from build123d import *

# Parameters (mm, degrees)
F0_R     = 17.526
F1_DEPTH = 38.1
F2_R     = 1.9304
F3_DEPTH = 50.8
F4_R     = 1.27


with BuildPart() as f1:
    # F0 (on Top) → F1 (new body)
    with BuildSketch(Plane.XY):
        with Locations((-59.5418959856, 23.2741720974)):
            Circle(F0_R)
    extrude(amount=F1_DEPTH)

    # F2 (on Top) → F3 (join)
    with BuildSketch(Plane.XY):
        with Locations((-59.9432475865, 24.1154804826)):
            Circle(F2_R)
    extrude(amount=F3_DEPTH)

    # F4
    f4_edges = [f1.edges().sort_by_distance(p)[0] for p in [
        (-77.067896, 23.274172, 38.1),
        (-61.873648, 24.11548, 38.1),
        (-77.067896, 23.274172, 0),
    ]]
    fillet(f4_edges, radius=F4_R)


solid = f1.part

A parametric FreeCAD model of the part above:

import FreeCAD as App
import Part
import Sketcher

V = App.Vector
Q = App.Units.Quantity


def edges_at(feature, points):
    """Names of the edges that pass closest to the given points."""
    edges = feature.Shape.Edges
    near = lambda p: min(range(len(edges)), key=lambda i: edges[i].distToShape(Part.Vertex(*p))[0])
    return sorted({f"Edge{near(p) + 1}" for p in points})

doc = App.newDocument("Part")
body = doc.addObject("PartDesign::Body", "Body")

sketch1 = body.newObject("Sketcher::SketchObject", "Sketch")
sketch1.AttachmentSupport = (doc.getObject("XY_Plane"), [""])
sketch1.MapMode = "FlatFace"
sketch1.addGeometry(Part.Circle(V(-60, 23, 0), V(0, 0, 1), 18), False)
sketch1.addConstraint(Sketcher.Constraint("Diameter", 0, Q("1.38 in")))
sketch1.addConstraint(Sketcher.Constraint("DistanceX", 0, 3, -1, 1, 59.541896))
sketch1.addConstraint(Sketcher.Constraint("DistanceY", -1, 1, 0, 3, 23.274172))
pad1 = body.newObject("PartDesign::Pad", "Pad")
pad1.Profile = sketch1
pad1.Length = Q("1.5 in")

sketch2 = body.newObject("Sketcher::SketchObject", "Sketch001")
sketch2.AttachmentSupport = (doc.getObject("XY_Plane"), [""])
sketch2.MapMode = "FlatFace"
sketch2.addGeometry(Part.Circle(V(-59.9, 24.1, 0), V(0, 0, 1), 1.9), False)
sketch2.addConstraint(Sketcher.Constraint("Diameter", 0, Q("0.152 in")))
sketch2.addConstraint(Sketcher.Constraint("DistanceY", -1, 1, 0, 3, 24.11548))
sketch2.addConstraint(Sketcher.Constraint("DistanceX", 0, 3, -1, 1, 59.943248))
pad2 = body.newObject("PartDesign::Pad", "Pad001")
pad2.Profile = sketch2
pad2.Length = Q("2 in")
doc.recompute()

fillet = body.newObject("PartDesign::Fillet", "Fillet")
fillet.Base = (pad2, edges_at(pad2, [(-77.068, 23.274, 38.1), (-61.874, 24.115, 38.1), (-77.068, 23.274, 0)]))
fillet.Radius = Q("0.05 in")

doc.recompute()
